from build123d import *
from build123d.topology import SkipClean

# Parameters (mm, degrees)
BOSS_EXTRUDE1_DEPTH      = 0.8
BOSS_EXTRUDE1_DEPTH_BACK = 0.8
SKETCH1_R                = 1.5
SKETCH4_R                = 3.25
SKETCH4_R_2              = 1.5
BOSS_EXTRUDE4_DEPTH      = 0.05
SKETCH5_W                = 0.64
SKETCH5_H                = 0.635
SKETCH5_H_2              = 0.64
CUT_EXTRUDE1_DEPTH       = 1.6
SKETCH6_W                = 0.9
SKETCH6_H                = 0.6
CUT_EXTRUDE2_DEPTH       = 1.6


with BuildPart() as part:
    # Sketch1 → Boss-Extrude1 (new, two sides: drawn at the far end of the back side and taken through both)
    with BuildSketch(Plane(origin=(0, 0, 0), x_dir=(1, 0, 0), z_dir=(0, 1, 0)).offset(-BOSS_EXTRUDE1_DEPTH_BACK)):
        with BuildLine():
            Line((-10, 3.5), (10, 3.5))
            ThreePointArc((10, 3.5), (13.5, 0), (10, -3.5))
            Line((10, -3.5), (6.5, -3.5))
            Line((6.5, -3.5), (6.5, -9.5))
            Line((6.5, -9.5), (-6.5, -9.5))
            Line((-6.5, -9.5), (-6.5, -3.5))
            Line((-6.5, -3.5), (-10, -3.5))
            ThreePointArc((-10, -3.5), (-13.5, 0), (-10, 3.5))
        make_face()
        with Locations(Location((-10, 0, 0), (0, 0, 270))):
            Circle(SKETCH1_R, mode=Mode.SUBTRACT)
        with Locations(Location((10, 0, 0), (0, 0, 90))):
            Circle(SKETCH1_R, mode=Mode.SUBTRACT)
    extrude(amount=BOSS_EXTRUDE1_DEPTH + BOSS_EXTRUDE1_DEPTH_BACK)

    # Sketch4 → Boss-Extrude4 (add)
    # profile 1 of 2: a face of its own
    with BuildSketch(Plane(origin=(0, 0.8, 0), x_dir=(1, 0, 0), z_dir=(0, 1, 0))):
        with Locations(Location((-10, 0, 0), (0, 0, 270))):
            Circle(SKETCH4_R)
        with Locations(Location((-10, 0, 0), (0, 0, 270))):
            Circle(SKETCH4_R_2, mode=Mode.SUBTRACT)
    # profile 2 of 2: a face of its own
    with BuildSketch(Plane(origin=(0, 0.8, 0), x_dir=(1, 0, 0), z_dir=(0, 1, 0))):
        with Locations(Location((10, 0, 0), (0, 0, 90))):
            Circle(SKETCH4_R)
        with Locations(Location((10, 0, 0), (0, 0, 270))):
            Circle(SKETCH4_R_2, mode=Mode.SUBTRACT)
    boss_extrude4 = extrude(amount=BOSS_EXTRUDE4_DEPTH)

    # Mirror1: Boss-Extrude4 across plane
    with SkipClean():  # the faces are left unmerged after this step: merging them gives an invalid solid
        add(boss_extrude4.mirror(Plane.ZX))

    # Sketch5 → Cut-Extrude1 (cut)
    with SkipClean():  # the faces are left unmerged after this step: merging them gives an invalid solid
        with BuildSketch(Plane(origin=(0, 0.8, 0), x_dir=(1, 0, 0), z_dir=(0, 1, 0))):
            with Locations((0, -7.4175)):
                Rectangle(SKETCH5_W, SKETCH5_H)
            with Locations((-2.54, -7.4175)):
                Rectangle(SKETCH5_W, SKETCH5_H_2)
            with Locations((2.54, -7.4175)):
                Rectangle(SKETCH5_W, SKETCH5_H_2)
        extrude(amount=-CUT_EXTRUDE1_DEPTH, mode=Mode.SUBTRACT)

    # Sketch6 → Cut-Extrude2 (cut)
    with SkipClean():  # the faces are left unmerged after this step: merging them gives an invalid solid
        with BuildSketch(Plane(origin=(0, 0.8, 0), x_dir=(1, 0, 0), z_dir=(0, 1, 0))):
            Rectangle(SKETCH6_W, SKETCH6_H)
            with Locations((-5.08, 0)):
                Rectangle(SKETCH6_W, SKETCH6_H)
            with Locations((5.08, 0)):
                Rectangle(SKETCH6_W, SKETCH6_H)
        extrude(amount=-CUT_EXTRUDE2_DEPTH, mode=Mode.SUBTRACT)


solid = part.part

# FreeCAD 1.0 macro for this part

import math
import FreeCAD as App
import Part
import Sketcher

doc = App.newDocument("Part")
params = doc.addObject("Spreadsheet::Sheet", "Params")
for row, (alias, value) in enumerate([
    ("sketch1_diameter", "3 mm"),
    ("sketch1_radius", "3.5 mm"),
    ("sketch1_width", "20 mm"),
    ("sketch1_width2", "13 mm"),
    ("sketch1_height", "6 mm"),
    ("pad1_length", "0.8 mm"),
    ("pad1_length2", "0.8 mm"),
    ("sketch2_diameter", "3 mm"),
    ("sketch2_diameter2", "6.5 mm"),
    ("pad2_length", "0.05 mm"),
    ("sketch3_width", "0.64 mm"),
    ("pocket1_length", "1.6 mm"),
    ("sketch4_width", "0.9 mm"),
    ("sketch4_height", "0.6 mm"),
    ("pocket2_length", "1.6 mm"),
], start=1):
    params.set(f"A{row}", alias)
    params.set(f"B{row}", "=" + value)
    params.setAlias(f"B{row}", alias)

body = doc.addObject("PartDesign::Body", "Body")

# Sketch on XZ plane
sketch1 = body.newObject("Sketcher::SketchObject", "Sketch")
sketch1.AttachmentSupport = (doc.getObject("XZ_Plane"), [""])
sketch1.MapMode = "FlatFace"
sketch1.addGeometry([
    Part.LineSegment(App.Vector(10, -3.5, 0), App.Vector(-10, -3.5, 0)),  # 0
    Part.ArcOfCircle(Part.Circle(App.Vector(-10, 0, 0), App.Vector(0, 0, 1), 3.5), math.radians(90), math.radians(270)),  # 1
    Part.LineSegment(App.Vector(-10, 3.5, 0), App.Vector(-6.5, 3.5, 0)),  # 2
    Part.LineSegment(App.Vector(-6.5, 3.5, 0), App.Vector(-6.5, 9.5, 0)),  # 3
    Part.LineSegment(App.Vector(-6.5, 9.5, 0), App.Vector(6.5, 9.5, 0)),  # 4
    Part.LineSegment(App.Vector(6.5, 9.5, 0), App.Vector(6.5, 3.5, 0)),  # 5
    Part.LineSegment(App.Vector(6.5, 3.5, 0), App.Vector(10, 3.5, 0)),  # 6
    Part.ArcOfCircle(Part.Circle(App.Vector(10, 0, 0), App.Vector(0, 0, 1), 3.5), math.radians(-90), math.radians(90)),  # 7
    Part.Circle(App.Vector(10, 0, 0), App.Vector(0, 0, 1), 1.5),  # 8
    Part.Circle(App.Vector(-10, 0, 0), App.Vector(0, 0, 1), 1.5),  # 9
], False)
sketch1.addConstraint([
    Sketcher.Constraint("Tangent", 0, 2, 1, 2),
    Sketcher.Constraint("Tangent", 1, 1, 2, 1),
    Sketcher.Constraint("Coincident", 2, 2, 3, 1),
    Sketcher.Constraint("Coincident", 3, 2, 4, 1),
    Sketcher.Constraint("Coincident", 4, 2, 5, 1),
    Sketcher.Constraint("Coincident", 5, 2, 6, 1),
    Sketcher.Constraint("Tangent", 6, 2, 7, 2),
    Sketcher.Constraint("Tangent", 7, 1, 0, 1),
    Sketcher.Constraint("Horizontal", 0),
    Sketcher.Constraint("Horizontal", 2),
    Sketcher.Constraint("Vertical", 3),
    Sketcher.Constraint("Horizontal", 4),
    Sketcher.Constraint("Vertical", 5),
    Sketcher.Constraint("Horizontal", 6),
    Sketcher.Constraint("Coincident", 8, 3, 7, 3),
    Sketcher.Constraint("Coincident", 9, 3, 1, 3),
    Sketcher.Constraint("Equal", 1, 7),
    Sketcher.Constraint("Equal", 8, 9),
    Sketcher.Constraint("Symmetric", 1, 3, 7, 3, -1, 1),
    Sketcher.Constraint("Equal", 2, 6),
    Sketcher.Constraint("Diameter", 8, 3.0),
    Sketcher.Constraint("Radius", 1, 3.5),
    Sketcher.Constraint("DistanceX", 0, 2, 0, 1, 20.0),
    Sketcher.Constraint("DistanceX", 4, 1, 4, 2, 13.0),
    Sketcher.Constraint("DistanceY", 3, 1, 3, 2, 6.0),
])
sketch1.setExpression("Constraints[20]", "Params.sketch1_diameter")
sketch1.setExpression("Constraints[21]", "Params.sketch1_radius")
sketch1.setExpression("Constraints[22]", "Params.sketch1_width")
sketch1.setExpression("Constraints[23]", "Params.sketch1_width2")
sketch1.setExpression("Constraints[24]", "Params.sketch1_height")
pad1 = body.newObject("PartDesign::Pad", "Pad")
pad1.Profile = sketch1
pad1.Type = "TwoLengths"
pad1.setExpression("Length", "Params.pad1_length")
pad1.setExpression("Length2", "Params.pad1_length2")
pad1.Reversed = True

# Sketch on XZ plane
sketch2 = body.newObject("Sketcher::SketchObject", "Sketch001")
sketch2.AttachmentSupport = (doc.getObject("XZ_Plane"), [""])
sketch2.MapMode = "FlatFace"
sketch2.AttachmentOffset = App.Placement(App.Vector(0, 0, -0.8), App.Rotation())
sketch2.addGeometry([
    Part.Circle(App.Vector(-10, 0, 0), App.Vector(0, 0, 1), 3.2),
    Part.Circle(App.Vector(-10, 0, 0), App.Vector(0, 0, 1), 1.5),
    Part.Circle(App.Vector(10, 0, 0), App.Vector(0, 0, 1), 3.2),
    Part.Circle(App.Vector(10, 0, 0), App.Vector(0, 0, 1), 1.5),
], False)
sketch2.addConstraint([
    Sketcher.Constraint("Coincident", 1, 3, 0, 3),
    Sketcher.Constraint("Coincident", 3, 3, 2, 3),
    Sketcher.Constraint("Equal", 0, 2),
    Sketcher.Constraint("Equal", 1, 3),
    Sketcher.Constraint("Symmetric", 0, 3, 2, 3, -1, 1),
    Sketcher.Constraint("PointOnObject", 0, 3, -1),
    Sketcher.Constraint("Diameter", 1, 3.0),
    Sketcher.Constraint("Diameter", 0, 6.5),
    Sketcher.Constraint("DistanceX", 0, 3, -1, 1, 10.0),
])
sketch2.setExpression("Constraints[6]", "Params.sketch2_diameter")
sketch2.setExpression("Constraints[7]", "Params.sketch2_diameter2")
pad2 = body.newObject("PartDesign::Pad", "Pad001")
pad2.Profile = sketch2
pad2.setExpression("Length", "Params.pad2_length")
pad2.Reversed = True
doc.recompute()

mirrored = body.newObject("PartDesign::Mirrored", "Mirrored")
mirrored.Originals = [pad2]
mirrored.MirrorPlane = (doc.getObject("XZ_Plane"), [""])
body.Tip = mirrored

# Sketch on XZ plane
sketch3 = body.newObject("Sketcher::SketchObject", "Sketch002")
sketch3.AttachmentSupport = (doc.getObject("XZ_Plane"), [""])
sketch3.MapMode = "FlatFace"
sketch3.AttachmentOffset = App.Placement(App.Vector(0, 0, -0.8), App.Rotation())
sketch3.addGeometry([
    Part.LineSegment(App.Vector(-0.3, 7.1, 0), App.Vector(-0.3, 7.7, 0)),  # 0
    Part.LineSegment(App.Vector(-0.3, 7.7, 0), App.Vector(0.3, 7.7, 0)),  # 1
    Part.LineSegment(App.Vector(0.3, 7.7, 0), App.Vector(0.3, 7.1, 0)),  # 2
    Part.LineSegment(App.Vector(0.3, 7.1, 0), App.Vector(-0.3, 7.1, 0)),  # 3
    Part.LineSegment(App.Vector(-2.9, 7.1, 0), App.Vector(-2.9, 7.7, 0)),  # 4
    Part.LineSegment(App.Vector(-2.9, 7.7, 0), App.Vector(-2.2, 7.7, 0)),  # 5
    Part.LineSegment(App.Vector(-2.2, 7.7, 0), App.Vector(-2.2, 7.1, 0)),  # 6
    Part.LineSegment(App.Vector(-2.2, 7.1, 0), App.Vector(-2.9, 7.1, 0)),  # 7
    Part.LineSegment(App.Vector(2.2, 7.1, 0), App.Vector(2.2, 7.7, 0)),  # 8
    Part.LineSegment(App.Vector(2.2, 7.7, 0), App.Vector(2.9, 7.7, 0)),  # 9
    Part.LineSegment(App.Vector(2.9, 7.7, 0), App.Vector(2.9, 7.1, 0)),  # 10
    Part.LineSegment(App.Vector(2.9, 7.1, 0), App.Vector(2.2, 7.1, 0)),  # 11
], False)
sketch3.addConstraint([
    Sketcher.Constraint("Coincident", 0, 2, 1, 1),
    Sketcher.Constraint("Coincident", 1, 2, 2, 1),
    Sketcher.Constraint("Coincident", 2, 2, 3, 1),
    Sketcher.Constraint("Coincident", 3, 2, 0, 1),
    Sketcher.Constraint("Coincident", 4, 2, 5, 1),
    Sketcher.Constraint("Coincident", 5, 2, 6, 1),
    Sketcher.Constraint("Coincident", 6, 2, 7, 1),
    Sketcher.Constraint("Coincident", 7, 2, 4, 1),
    Sketcher.Constraint("Coincident", 8, 2, 9, 1),
    Sketcher.Constraint("Coincident", 9, 2, 10, 1),
    Sketcher.Constraint("Coincident", 10, 2, 11, 1),
    Sketcher.Constraint("Coincident", 11, 2, 8, 1),
    Sketcher.Constraint("Vertical", 0),
    Sketcher.Constraint("Horizontal", 1),
    Sketcher.Constraint("Vertical", 2),
    Sketcher.Constraint("Horizontal", 3),
    Sketcher.Constraint("Vertical", 4),
    Sketcher.Constraint("Horizontal", 5),
    Sketcher.Constraint("Vertical", 6),
    Sketcher.Constraint("Horizontal", 7),
    Sketcher.Constraint("Vertical", 8),
    Sketcher.Constraint("Horizontal", 9),
    Sketcher.Constraint("Vertical", 10),
    Sketcher.Constraint("Horizontal", 11),
    Sketcher.Constraint("Symmetric", 5, 2, 8, 2, -2),
    Sketcher.Constraint("Symmetric", 7, 2, 10, 2, -2),
    Sketcher.Constraint("Equal", 3, 5),
    Sketcher.Constraint("Equal", 11, 4),
    Sketcher.Constraint("DistanceX", 1, 1, 1, 2, 0.64),
    Sketcher.Constraint("DistanceY", -1, 1, 2, 2, 7.1),
    Sketcher.Constraint("DistanceX", 5, 2, 0, 2, 1.9),
    Sketcher.Constraint("DistanceX", 1, 2, 8, 2, 1.9),
    Sketcher.Constraint("DistanceY", 0, 1, 0, 2, 0.635),
    Sketcher.Constraint("DistanceY", -1, 1, 4, 2, 7.7375),
])
sketch3.setExpression("Constraints[28]", "Params.sketch3_width")
pocket1 = body.newObject("PartDesign::Pocket", "Pocket")
pocket1.Profile = sketch3
pocket1.setExpression("Length", "Params.pocket1_length")
pocket1.Reversed = True

# Sketch on XZ plane
sketch4 = body.newObject("Sketcher::SketchObject", "Sketch003")
sketch4.AttachmentSupport = (doc.getObject("XZ_Plane"), [""])
sketch4.MapMode = "FlatFace"
sketch4.AttachmentOffset = App.Placement(App.Vector(0, 0, -0.8), App.Rotation())
sketch4.addGeometry([
    Part.LineSegment(App.Vector(-0.5, -0.3, 0), App.Vector(-0.5, 0.3, 0)),  # 0
    Part.LineSegment(App.Vector(-0.5, 0.3, 0), App.Vector(0.5, 0.3, 0)),  # 1
    Part.LineSegment(App.Vector(0.5, 0.3, 0), App.Vector(0.5, -0.3, 0)),  # 2
    Part.LineSegment(App.Vector(0.5, -0.3, 0), App.Vector(-0.5, -0.3, 0)),  # 3
    Part.LineSegment(App.Vector(-5.5, -0.3, 0), App.Vector(-5.5, 0.3, 0)),  # 4
    Part.LineSegment(App.Vector(-5.5, 0.3, 0), App.Vector(-4.6, 0.3, 0)),  # 5
    Part.LineSegment(App.Vector(-4.6, 0.3, 0), App.Vector(-4.6, -0.3, 0)),  # 6
    Part.LineSegment(App.Vector(-4.6, -0.3, 0), App.Vector(-5.5, -0.3, 0)),  # 7
    Part.LineSegment(App.Vector(4.6, -0.3, 0), App.Vector(4.6, 0.3, 0)),  # 8
    Part.LineSegment(App.Vector(4.6, 0.3, 0), App.Vector(5.5, 0.3, 0)),  # 9
    Part.LineSegment(App.Vector(5.5, 0.3, 0), App.Vector(5.5, -0.3, 0)),  # 10
    Part.LineSegment(App.Vector(5.5, -0.3, 0), App.Vector(4.6, -0.3, 0)),  # 11
], False)
sketch4.addConstraint([
    Sketcher.Constraint("Coincident", 0, 2, 1, 1),
    Sketcher.Constraint("Coincident", 1, 2, 2, 1),
    Sketcher.Constraint("Coincident", 2, 2, 3, 1),
    Sketcher.Constraint("Coincident", 3, 2, 0, 1),
    Sketcher.Constraint("Coincident", 4, 2, 5, 1),
    Sketcher.Constraint("Coincident", 5, 2, 6, 1),
    Sketcher.Constraint("Coincident", 6, 2, 7, 1),
    Sketcher.Constraint("Coincident", 7, 2, 4, 1),
    Sketcher.Constraint("Coincident", 8, 2, 9, 1),
    Sketcher.Constraint("Coincident", 9, 2, 10, 1),
    Sketcher.Constraint("Coincident", 10, 2, 11, 1),
    Sketcher.Constraint("Coincident", 11, 2, 8, 1),
    Sketcher.Constraint("Vertical", 0),
    Sketcher.Constraint("Horizontal", 1),
    Sketcher.Constraint("Vertical", 2),
    Sketcher.Constraint("Horizontal", 3),
    Sketcher.Constraint("Vertical", 4),
    Sketcher.Constraint("Horizontal", 5),
    Sketcher.Constraint("Vertical", 6),
    Sketcher.Constraint("Horizontal", 7),
    Sketcher.Constraint("Vertical", 8),
    Sketcher.Constraint("Horizontal", 9),
    Sketcher.Constraint("Vertical", 10),
    Sketcher.Constraint("Horizontal", 11),
    Sketcher.Constraint("Symmetric", 0, 2, 2, 2, -1, 1),
    Sketcher.Constraint("Symmetric", 6, 2, 8, 2, -1, 1),
    Sketcher.Constraint("Symmetric", 4, 2, 10, 2, -1, 1),
    Sketcher.Constraint("Horizontal", 1, 2, 4, 2),
    Sketcher.Constraint("Horizontal", 3, 2, 6, 2),
    Sketcher.Constraint("Equal", 3, 5),
    Sketcher.Constraint("DistanceX", 1, 1, 1, 2, 0.9),
    Sketcher.Constraint("DistanceY", 0, 1, 0, 2, 0.6),
    Sketcher.Constraint("DistanceX", 4, 2, -1, 1, 5.53),
])
sketch4.setExpression("Constraints[30]", "Params.sketch4_width")
sketch4.setExpression("Constraints[31]", "Params.sketch4_height")
pocket2 = body.newObject("PartDesign::Pocket", "Pocket001")
pocket2.Profile = sketch4
pocket2.setExpression("Length", "Params.pocket2_length")
pocket2.Reversed = True

doc.recompute()
